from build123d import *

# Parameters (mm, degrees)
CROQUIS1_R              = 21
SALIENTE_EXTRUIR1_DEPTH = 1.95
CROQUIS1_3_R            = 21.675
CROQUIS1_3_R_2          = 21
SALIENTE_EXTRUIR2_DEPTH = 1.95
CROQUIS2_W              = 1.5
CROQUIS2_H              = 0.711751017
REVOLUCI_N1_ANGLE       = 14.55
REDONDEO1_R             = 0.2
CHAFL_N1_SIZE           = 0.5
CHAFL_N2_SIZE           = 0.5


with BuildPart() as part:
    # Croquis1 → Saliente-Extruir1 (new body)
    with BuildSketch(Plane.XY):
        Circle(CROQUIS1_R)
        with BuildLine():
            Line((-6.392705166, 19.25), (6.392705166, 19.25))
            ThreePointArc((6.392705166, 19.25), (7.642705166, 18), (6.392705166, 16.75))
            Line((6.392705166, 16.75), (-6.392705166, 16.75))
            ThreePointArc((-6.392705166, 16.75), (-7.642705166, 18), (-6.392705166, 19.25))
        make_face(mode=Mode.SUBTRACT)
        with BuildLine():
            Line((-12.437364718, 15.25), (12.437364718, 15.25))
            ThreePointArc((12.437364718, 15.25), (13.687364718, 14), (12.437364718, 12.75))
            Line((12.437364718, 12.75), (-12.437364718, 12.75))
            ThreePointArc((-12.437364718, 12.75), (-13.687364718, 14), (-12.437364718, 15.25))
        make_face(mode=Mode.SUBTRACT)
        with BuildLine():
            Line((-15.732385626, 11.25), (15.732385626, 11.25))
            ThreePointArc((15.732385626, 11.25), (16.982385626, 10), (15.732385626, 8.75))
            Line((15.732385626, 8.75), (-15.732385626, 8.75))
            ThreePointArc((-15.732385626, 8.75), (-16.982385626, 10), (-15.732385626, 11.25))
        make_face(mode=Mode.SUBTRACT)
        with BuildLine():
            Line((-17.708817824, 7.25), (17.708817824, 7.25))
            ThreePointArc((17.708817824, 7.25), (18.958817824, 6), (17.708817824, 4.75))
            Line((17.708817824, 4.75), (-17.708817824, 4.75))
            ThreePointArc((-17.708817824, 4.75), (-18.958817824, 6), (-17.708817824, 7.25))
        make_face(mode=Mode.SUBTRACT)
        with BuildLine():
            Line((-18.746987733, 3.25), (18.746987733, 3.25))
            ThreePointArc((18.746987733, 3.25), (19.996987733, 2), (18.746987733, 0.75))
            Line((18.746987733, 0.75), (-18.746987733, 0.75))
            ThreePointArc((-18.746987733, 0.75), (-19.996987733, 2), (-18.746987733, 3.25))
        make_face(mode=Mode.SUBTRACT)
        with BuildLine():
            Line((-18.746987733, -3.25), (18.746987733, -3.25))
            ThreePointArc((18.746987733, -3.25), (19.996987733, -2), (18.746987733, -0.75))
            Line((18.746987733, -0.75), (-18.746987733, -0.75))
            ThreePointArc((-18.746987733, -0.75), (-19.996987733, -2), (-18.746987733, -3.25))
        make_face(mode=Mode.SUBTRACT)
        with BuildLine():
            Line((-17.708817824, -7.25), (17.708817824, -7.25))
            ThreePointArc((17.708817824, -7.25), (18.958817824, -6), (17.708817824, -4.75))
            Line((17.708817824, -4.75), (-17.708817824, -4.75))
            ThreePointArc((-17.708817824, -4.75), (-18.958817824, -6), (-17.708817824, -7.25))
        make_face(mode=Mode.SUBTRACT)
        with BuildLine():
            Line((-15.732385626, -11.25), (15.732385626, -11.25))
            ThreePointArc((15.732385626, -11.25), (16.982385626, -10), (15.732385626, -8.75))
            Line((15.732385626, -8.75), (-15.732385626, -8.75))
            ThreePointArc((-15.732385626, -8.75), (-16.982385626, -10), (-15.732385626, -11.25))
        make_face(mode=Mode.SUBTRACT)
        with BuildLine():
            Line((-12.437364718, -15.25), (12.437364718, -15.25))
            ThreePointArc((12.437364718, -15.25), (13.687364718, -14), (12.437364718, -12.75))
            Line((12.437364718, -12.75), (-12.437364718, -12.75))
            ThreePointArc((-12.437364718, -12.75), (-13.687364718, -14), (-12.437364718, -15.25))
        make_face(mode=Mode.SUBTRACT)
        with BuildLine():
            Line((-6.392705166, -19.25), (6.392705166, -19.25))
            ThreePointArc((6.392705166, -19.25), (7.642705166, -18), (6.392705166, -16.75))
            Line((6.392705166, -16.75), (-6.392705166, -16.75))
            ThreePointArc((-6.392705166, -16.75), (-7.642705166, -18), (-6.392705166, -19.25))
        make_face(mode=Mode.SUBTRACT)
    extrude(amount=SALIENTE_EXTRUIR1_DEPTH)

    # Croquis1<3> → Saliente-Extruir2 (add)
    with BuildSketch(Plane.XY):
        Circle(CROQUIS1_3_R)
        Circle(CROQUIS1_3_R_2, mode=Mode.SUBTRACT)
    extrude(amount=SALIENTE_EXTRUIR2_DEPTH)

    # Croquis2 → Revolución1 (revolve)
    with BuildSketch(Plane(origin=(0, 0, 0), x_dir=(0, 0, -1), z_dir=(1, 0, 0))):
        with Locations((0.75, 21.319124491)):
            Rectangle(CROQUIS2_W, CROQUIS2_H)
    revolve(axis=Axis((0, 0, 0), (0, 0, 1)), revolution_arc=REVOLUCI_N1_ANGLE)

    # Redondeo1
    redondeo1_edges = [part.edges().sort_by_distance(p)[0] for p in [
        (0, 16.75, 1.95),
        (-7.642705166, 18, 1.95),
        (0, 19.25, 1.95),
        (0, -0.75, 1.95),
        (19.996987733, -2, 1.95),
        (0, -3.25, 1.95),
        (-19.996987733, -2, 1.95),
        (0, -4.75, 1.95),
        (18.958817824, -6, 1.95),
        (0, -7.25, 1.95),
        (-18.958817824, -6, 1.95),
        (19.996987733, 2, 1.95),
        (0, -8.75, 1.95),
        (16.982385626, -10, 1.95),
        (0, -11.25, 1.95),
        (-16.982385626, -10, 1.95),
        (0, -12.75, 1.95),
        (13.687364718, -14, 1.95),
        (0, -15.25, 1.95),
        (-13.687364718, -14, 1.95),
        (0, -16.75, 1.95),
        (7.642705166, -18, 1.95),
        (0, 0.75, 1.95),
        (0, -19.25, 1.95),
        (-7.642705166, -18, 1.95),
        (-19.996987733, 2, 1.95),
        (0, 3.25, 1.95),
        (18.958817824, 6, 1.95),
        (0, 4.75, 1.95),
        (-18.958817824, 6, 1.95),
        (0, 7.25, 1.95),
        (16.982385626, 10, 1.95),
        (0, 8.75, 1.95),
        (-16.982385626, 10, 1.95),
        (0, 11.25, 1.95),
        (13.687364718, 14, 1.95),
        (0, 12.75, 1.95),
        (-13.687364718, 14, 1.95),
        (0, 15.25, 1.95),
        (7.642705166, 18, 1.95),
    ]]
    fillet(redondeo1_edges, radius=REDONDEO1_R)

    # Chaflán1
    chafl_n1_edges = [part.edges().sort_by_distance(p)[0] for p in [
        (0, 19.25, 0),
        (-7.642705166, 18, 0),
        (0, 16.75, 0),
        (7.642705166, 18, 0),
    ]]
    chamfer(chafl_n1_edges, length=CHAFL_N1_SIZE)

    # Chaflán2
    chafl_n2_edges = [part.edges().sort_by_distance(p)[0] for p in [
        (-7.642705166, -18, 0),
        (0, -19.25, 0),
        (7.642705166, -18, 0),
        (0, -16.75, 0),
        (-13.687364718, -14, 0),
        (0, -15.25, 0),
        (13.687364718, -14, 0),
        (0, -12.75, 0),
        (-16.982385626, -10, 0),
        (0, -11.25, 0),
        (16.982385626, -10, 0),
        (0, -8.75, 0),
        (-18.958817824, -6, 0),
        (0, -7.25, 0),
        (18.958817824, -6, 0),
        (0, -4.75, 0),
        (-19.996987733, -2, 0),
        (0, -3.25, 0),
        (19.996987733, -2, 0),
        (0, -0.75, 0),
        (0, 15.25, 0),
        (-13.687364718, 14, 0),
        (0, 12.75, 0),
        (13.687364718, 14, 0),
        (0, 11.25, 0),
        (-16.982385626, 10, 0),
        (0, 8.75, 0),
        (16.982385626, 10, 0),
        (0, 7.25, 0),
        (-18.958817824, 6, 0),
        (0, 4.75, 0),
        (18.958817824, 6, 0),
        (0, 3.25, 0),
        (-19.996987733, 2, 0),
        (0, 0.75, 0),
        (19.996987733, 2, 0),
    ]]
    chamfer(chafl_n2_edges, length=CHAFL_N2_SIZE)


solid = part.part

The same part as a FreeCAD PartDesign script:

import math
import FreeCAD as App
import Part
import Sketcher

V = App.Vector
Q = App.Units.Quantity


def edges_at(feature, points):
    """Names of the edges that pass closest to the given points."""
    edges = feature.Shape.Edges
    near = lambda p: min(range(len(edges)), key=lambda i: edges[i].distToShape(Part.Vertex(*p))[0])
    return sorted({f"Edge{near(p) + 1}" for p in points})

doc = App.newDocument("Part")
body = doc.addObject("PartDesign::Body", "Body")

# Sketch on XY plane
sketch1 = doc.addObject("Sketcher::SketchObject", "Sketch")
body.addObject(sketch1)
sketch1.AttachmentSupport = (doc.XY_Plane, [""])
sketch1.MapMode = "FlatFace"
sketch1.addGeometry(Part.Circle(V(0, 0, 0), V(0, 0, 1), 21), False)
sketch1.addGeometry(Part.LineSegment(V(6.392705, -19.25, 0), V(-6.392705, -19.25, 0)), False)
sketch1.addGeometry(Part.ArcOfCircle(Part.Circle(V(-6.392705, -18, 0), V(0, 0, 1), 1.25), math.radians(90), math.radians(270)), False)
sketch1.addGeometry(Part.LineSegment(V(-6.392705, -16.75, 0), V(6.392705, -16.75, 0)), False)
sketch1.addGeometry(Part.ArcOfCircle(Part.Circle(V(6.392705, -18, 0), V(0, 0, 1), 1.25), math.radians(-90), math.radians(90)), False)
sketch1.addGeometry(Part.LineSegment(V(12.437365, -15.25, 0), V(-12.437365, -15.25, 0)), False)
sketch1.addGeometry(Part.ArcOfCircle(Part.Circle(V(-12.437365, -14, 0), V(0, 0, 1), 1.25), math.radians(90), math.radians(270)), False)
sketch1.addGeometry(Part.LineSegment(V(-12.437365, -12.75, 0), V(12.437365, -12.75, 0)), False)
sketch1.addGeometry(Part.ArcOfCircle(Part.Circle(V(12.437365, -14, 0), V(0, 0, 1), 1.25), math.radians(-90), math.radians(90)), False)
sketch1.addGeometry(Part.LineSegment(V(15.732386, -11.25, 0), V(-15.732386, -11.25, 0)), False)
sketch1.addGeometry(Part.ArcOfCircle(Part.Circle(V(-15.732386, -10, 0), V(0, 0, 1), 1.25), math.radians(90), math.radians(270)), False)
sketch1.addGeometry(Part.LineSegment(V(-15.732386, -8.75, 0), V(15.732386, -8.75, 0)), False)
sketch1.addGeometry(Part.ArcOfCircle(Part.Circle(V(15.732386, -10, 0), V(0, 0, 1), 1.25), math.radians(-90), math.radians(90)), False)
sketch1.addGeometry(Part.LineSegment(V(17.708818, -7.25, 0), V(-17.708818, -7.25, 0)), False)
sketch1.addGeometry(Part.ArcOfCircle(Part.Circle(V(-17.708818, -6, 0), V(0, 0, 1), 1.25), math.radians(90), math.radians(270)), False)
sketch1.addGeometry(Part.LineSegment(V(-17.708818, -4.75, 0), V(17.708818, -4.75, 0)), False)
sketch1.addGeometry(Part.ArcOfCircle(Part.Circle(V(17.708818, -6, 0), V(0, 0, 1), 1.25), math.radians(-90), math.radians(90)), False)
sketch1.addGeometry(Part.LineSegment(V(18.746988, -3.25, 0), V(-18.746988, -3.25, 0)), False)
sketch1.addGeometry(Part.ArcOfCircle(Part.Circle(V(-18.746988, -2, 0), V(0, 0, 1), 1.25), math.radians(90), math.radians(270)), False)
sketch1.addGeometry(Part.LineSegment(V(-18.746988, -0.75, 0), V(18.746988, -0.75, 0)), False)
sketch1.addGeometry(Part.ArcOfCircle(Part.Circle(V(18.746988, -2, 0), V(0, 0, 1), 1.25), math.radians(-90), math.radians(90)), False)
sketch1.addGeometry(Part.ArcOfCircle(Part.Circle(V(-18.746988, 2, 0), V(0, 0, 1), 1.25), math.radians(90), math.radians(270)), False)
sketch1.addGeometry(Part.LineSegment(V(-18.746988, 3.25, 0), V(18.746988, 3.25, 0)), False)
sketch1.addGeometry(Part.ArcOfCircle(Part.Circle(V(18.746988, 2, 0), V(0, 0, 1), 1.25), math.radians(-90), math.radians(90)), False)
sketch1.addGeometry(Part.LineSegment(V(18.746988, 0.75, 0), V(-18.746988, 0.75, 0)), False)
sketch1.addGeometry(Part.ArcOfCircle(Part.Circle(V(-17.708818, 6, 0), V(0, 0, 1), 1.25), math.radians(90), math.radians(270)), False)
sketch1.addGeometry(Part.LineSegment(V(-17.708818, 7.25, 0), V(17.708818, 7.25, 0)), False)
sketch1.addGeometry(Part.ArcOfCircle(Part.Circle(V(17.708818, 6, 0), V(0, 0, 1), 1.25), math.radians(-90), math.radians(90)), False)
sketch1.addGeometry(Part.LineSegment(V(17.708818, 4.75, 0), V(-17.708818, 4.75, 0)), False)
sketch1.addGeometry(Part.ArcOfCircle(Part.Circle(V(-15.732386, 10, 0), V(0, 0, 1), 1.25), math.radians(90), math.radians(270)), False)
sketch1.addGeometry(Part.LineSegment(V(-15.732386, 11.25, 0), V(15.732386, 11.25, 0)), False)
sketch1.addGeometry(Part.ArcOfCircle(Part.Circle(V(15.732386, 10, 0), V(0, 0, 1), 1.25), math.radians(-90), math.radians(90)), False)
sketch1.addGeometry(Part.LineSegment(V(15.732386, 8.75, 0), V(-15.732386, 8.75, 0)), False)
sketch1.addGeometry(Part.ArcOfCircle(Part.Circle(V(-12.437365, 14, 0), V(0, 0, 1), 1.25), math.radians(90), math.radians(270)), False)
sketch1.addGeometry(Part.LineSegment(V(-12.437365, 15.25, 0), V(12.437365, 15.25, 0)), False)
sketch1.addGeometry(Part.ArcOfCircle(Part.Circle(V(12.437365, 14, 0), V(0, 0, 1), 1.25), math.radians(-90), math.radians(90)), False)
sketch1.addGeometry(Part.LineSegment(V(12.437365, 12.75, 0), V(-12.437365, 12.75, 0)), False)
sketch1.addGeometry(Part.ArcOfCircle(Part.Circle(V(-6.392705, 18, 0), V(0, 0, 1), 1.25), math.radians(90), math.radians(270)), False)
sketch1.addGeometry(Part.LineSegment(V(-6.392705, 19.25, 0), V(6.392705, 19.25, 0)), False)
sketch1.addGeometry(Part.ArcOfCircle(Part.Circle(V(6.392705, 18, 0), V(0, 0, 1), 1.25), math.radians(-90), math.radians(90)), False)
sketch1.addGeometry(Part.LineSegment(V(6.392705, 16.75, 0), V(-6.392705, 16.75, 0)), False)
sketch1.addConstraint(Sketcher.Constraint("Tangent", 1, 2, 2, 2))
sketch1.addConstraint(Sketcher.Constraint("Tangent", 2, 1, 3, 1))
sketch1.addConstraint(Sketcher.Constraint("Tangent", 3, 2, 4, 2))
sketch1.addConstraint(Sketcher.Constraint("Tangent", 4, 1, 1, 1))
sketch1.addConstraint(Sketcher.Constraint("Tangent", 5, 2, 6, 2))
sketch1.addConstraint(Sketcher.Constraint("Tangent", 6, 1, 7, 1))
sketch1.addConstraint(Sketcher.Constraint("Tangent", 7, 2, 8, 2))
sketch1.addConstraint(Sketcher.Constraint("Tangent", 8, 1, 5, 1))
sketch1.addConstraint(Sketcher.Constraint("Tangent", 9, 2, 10, 2))
sketch1.addConstraint(Sketcher.Constraint("Tangent", 10, 1, 11, 1))
sketch1.addConstraint(Sketcher.Constraint("Tangent", 11, 2, 12, 2))
sketch1.addConstraint(Sketcher.Constraint("Tangent", 12, 1, 9, 1))
sketch1.addConstraint(Sketcher.Constraint("Tangent", 13, 2, 14, 2))
sketch1.addConstraint(Sketcher.Constraint("Tangent", 14, 1, 15, 1))
sketch1.addConstraint(Sketcher.Constraint("Tangent", 15, 2, 16, 2))
sketch1.addConstraint(Sketcher.Constraint("Tangent", 16, 1, 13, 1))
sketch1.addConstraint(Sketcher.Constraint("Tangent", 17, 2, 18, 2))
sketch1.addConstraint(Sketcher.Constraint("Tangent", 18, 1, 19, 1))
sketch1.addConstraint(Sketcher.Constraint("Tangent", 19, 2, 20, 2))
sketch1.addConstraint(Sketcher.Constraint("Tangent", 20, 1, 17, 1))
sketch1.addConstraint(Sketcher.Constraint("Tangent", 21, 1, 22, 1))
sketch1.addConstraint(Sketcher.Constraint("Tangent", 22, 2, 23, 2))
sketch1.addConstraint(Sketcher.Constraint("Tangent", 23, 1, 24, 1))
sketch1.addConstraint(Sketcher.Constraint("Tangent", 24, 2, 21, 2))
sketch1.addConstraint(Sketcher.Constraint("Tangent", 25, 1, 26, 1))
sketch1.addConstraint(Sketcher.Constraint("Tangent", 26, 2, 27, 2))
sketch1.addConstraint(Sketcher.Constraint("Tangent", 27, 1, 28, 1))
sketch1.addConstraint(Sketcher.Constraint("Tangent", 28, 2, 25, 2))
sketch1.addConstraint(Sketcher.Constraint("Tangent", 29, 1, 30, 1))
sketch1.addConstraint(Sketcher.Constraint("Tangent", 30, 2, 31, 2))
sketch1.addConstraint(Sketcher.Constraint("Tangent", 31, 1, 32, 1))
sketch1.addConstraint(Sketcher.Constraint("Tangent", 32, 2, 29, 2))
sketch1.addConstraint(Sketcher.Constraint("Tangent", 33, 1, 34, 1))
sketch1.addConstraint(Sketcher.Constraint("Tangent", 34, 2, 35, 2))
sketch1.addConstraint(Sketcher.Constraint("Tangent", 35, 1, 36, 1))
sketch1.addConstraint(Sketcher.Constraint("Tangent", 36, 2, 33, 2))
sketch1.addConstraint(Sketcher.Constraint("Tangent", 37, 1, 38, 1))
sketch1.addConstraint(Sketcher.Constraint("Tangent", 38, 2, 39, 2))
sketch1.addConstraint(Sketcher.Constraint("Tangent", 39, 1, 40, 1))
sketch1.addConstraint(Sketcher.Constraint("Tangent", 40, 2, 37, 2))
sketch1.addConstraint(Sketcher.Constraint("Horizontal", 1))
sketch1.addConstraint(Sketcher.Constraint("Horizontal", 3))
sketch1.addConstraint(Sketcher.Constraint("Horizontal", 5))
sketch1.addConstraint(Sketcher.Constraint("Horizontal", 7))
sketch1.addConstraint(Sketcher.Constraint("Horizontal", 9))
sketch1.addConstraint(Sketcher.Constraint("Horizontal", 11))
sketch1.addConstraint(Sketcher.Constraint("Horizontal", 13))
sketch1.addConstraint(Sketcher.Constraint("Horizontal", 15))
sketch1.addConstraint(Sketcher.Constraint("Horizontal", 17))
sketch1.addConstraint(Sketcher.Constraint("Horizontal", 19))
sketch1.addConstraint(Sketcher.Constraint("Horizontal", 22))
sketch1.addConstraint(Sketcher.Constraint("Horizontal", 24))
sketch1.addConstraint(Sketcher.Constraint("Horizontal", 26))
sketch1.addConstraint(Sketcher.Constraint("Horizontal", 28))
sketch1.addConstraint(Sketcher.Constraint("Horizontal", 30))
sketch1.addConstraint(Sketcher.Constraint("Horizontal", 32))
sketch1.addConstraint(Sketcher.Constraint("Horizontal", 34))
sketch1.addConstraint(Sketcher.Constraint("Horizontal", 36))
sketch1.addConstraint(Sketcher.Constraint("Horizontal", 38))
sketch1.addConstraint(Sketcher.Constraint("Horizontal", 40))
sketch1.addConstraint(Sketcher.Constraint("Coincident", 0, 3, -1, 1))
sketch1.addConstraint(Sketcher.Constraint("Equal", 4, 6))
sketch1.addConstraint(Sketcher.Constraint("Equal", 8, 10))
sketch1.addConstraint(Sketcher.Constraint("Equal", 12, 14))
sketch1.addConstraint(Sketcher.Constraint("Equal", 16, 18))
sketch1.addConstraint(Sketcher.Constraint("Equal", 20, 21))
sketch1.addConstraint(Sketcher.Constraint("Equal", 23, 25))
sketch1.addConstraint(Sketcher.Constraint("Equal", 27, 29))
sketch1.addConstraint(Sketcher.Constraint("Equal", 31, 33))
sketch1.addConstraint(Sketcher.Constraint("Equal", 35, 37))
sketch1.addConstraint(Sketcher.Constraint("Symmetric", 20, 3, 21, 3, -1, 1))
sketch1.addConstraint(Sketcher.Constraint("Symmetric", 16, 3, 25, 3, -1, 1))
sketch1.addConstraint(Sketcher.Constraint("Symmetric", 12, 3, 29, 3, -1, 1))
sketch1.addConstraint(Sketcher.Constraint("Symmetric", 8, 3, 33, 3, -1, 1))
sketch1.addConstraint(Sketcher.Constraint("Symmetric", 4, 3, 37, 3, -1, 1))
sketch1.addConstraint(Sketcher.Constraint("Vertical", 18, 3, 21, 3))
sketch1.addConstraint(Sketcher.Constraint("Vertical", 20, 3, 23, 3))
sketch1.addConstraint(Sketcher.Constraint("Vertical", 14, 3, 25, 3))
sketch1.addConstraint(Sketcher.Constraint("Vertical", 16, 3, 27, 3))
sketch1.addConstraint(Sketcher.Constraint("Vertical", 10, 3, 29, 3))
sketch1.addConstraint(Sketcher.Constraint("Vertical", 12, 3, 31, 3))
sketch1.addConstraint(Sketcher.Constraint("Vertical", 6, 3, 33, 3))
sketch1.addConstraint(Sketcher.Constraint("Vertical", 8, 3, 35, 3))
sketch1.addConstraint(Sketcher.Constraint("Vertical", 2, 3, 37, 3))
sketch1.addConstraint(Sketcher.Constraint("Vertical", 4, 3, 39, 3))
sketch1.addConstraint(Sketcher.Constraint("Diameter", 0, Q("42 mm")))
sketch1.addConstraint(Sketcher.Constraint("Radius", 2, Q("1.25 mm")))
sketch1.addConstraint(Sketcher.Constraint("DistanceY", 2, 3, -1, 1, Q("18 mm")))
sketch1.addConstraint(Sketcher.Constraint("DistanceY", 6, 3, -1, 1, Q("14 mm")))
sketch1.addConstraint(Sketcher.Constraint("DistanceY", 10, 3, -1, 1, Q("10 mm")))
sketch1.addConstraint(Sketcher.Constraint("DistanceY", 14, 3, -1, 1, Q("6 mm")))
sketch1.addConstraint(Sketcher.Constraint("DistanceY", 18, 3, -1, 1, Q("2 mm")))
sketch1.addConstraint(Sketcher.Constraint("DistanceX", 1, 2, 1, 1, Q("12.78541 mm")))
sketch1.addConstraint(Sketcher.Constraint("DistanceX", 5, 2, 5, 1, Q("24.874729 mm")))
sketch1.addConstraint(Sketcher.Constraint("DistanceX", 9, 2, 9, 1, Q("31.464771 mm")))
sketch1.addConstraint(Sketcher.Constraint("DistanceX", 13, 2, 13, 1, Q("35.417636 mm")))
sketch1.addConstraint(Sketcher.Constraint("DistanceX", 17, 2, 17, 1, Q("37.493975 mm")))
pad1 = doc.addObject("PartDesign::Pad", "Pad")
body.addObject(pad1)
pad1.Profile = sketch1
pad1.Length = 1.95

# Sketch on XY plane
sketch2 = doc.addObject("Sketcher::SketchObject", "Sketch001")
body.addObject(sketch2)
sketch2.AttachmentSupport = (doc.XY_Plane, [""])
sketch2.MapMode = "FlatFace"
sketch2.addGeometry(Part.Circle(V(0, 0, 0), V(0, 0, 1), 21.675), False)
sketch2.addGeometry(Part.Circle(V(0, 0, 0), V(0, 0, 1), 21), False)
sketch2.addConstraint(Sketcher.Constraint("Coincident", 0, 3, -1, 1))
sketch2.addConstraint(Sketcher.Constraint("Coincident", 1, 3, -1, 1))
sketch2.addConstraint(Sketcher.Constraint("Diameter", 1, Q("42 mm")))
sketch2.addConstraint(Sketcher.Constraint("Diameter", 0, Q("43.35 mm")))
pad2 = doc.addObject("PartDesign::Pad", "Pad001")
body.addObject(pad2)
pad2.Profile = sketch2
pad2.Length = 1.95

# Sketch on YZ plane
sketch3 = doc.addObject("Sketcher::SketchObject", "Sketch002")
body.addObject(sketch3)
sketch3.AttachmentSupport = (doc.YZ_Plane, [""])
sketch3.MapMode = "FlatFace"
sketch3.addGeometry(Part.LineSegment(V(21.675, 0, 0), V(20.963249, 0, 0)), False)
sketch3.addGeometry(Part.LineSegment(V(20.963249, 0, 0), V(20.963249, -1.5, 0)), False)
sketch3.addGeometry(Part.LineSegment(V(20.963249, -1.5, 0), V(21.675, -1.5, 0)), False)
sketch3.addGeometry(Part.LineSegment(V(21.675, -1.5, 0), V(21.675, 0, 0)), False)
sketch3.addConstraint(Sketcher.Constraint("Coincident", 0, 2, 1, 1))
sketch3.addConstraint(Sketcher.Constraint("Coincident", 1, 2, 2, 1))
sketch3.addConstraint(Sketcher.Constraint("Coincident", 2, 2, 3, 1))
sketch3.addConstraint(Sketcher.Constraint("Coincident", 3, 2, 0, 1))
sketch3.addConstraint(Sketcher.Constraint("Horizontal", 0))
sketch3.addConstraint(Sketcher.Constraint("Vertical", 1))
sketch3.addConstraint(Sketcher.Constraint("Horizontal", 2))
sketch3.addConstraint(Sketcher.Constraint("Vertical", 3))
sketch3.addConstraint(Sketcher.Constraint("PointOnObject", 0, 2, -1))
sketch3.addConstraint(Sketcher.Constraint("DistanceY", 1, 2, 1, 1, Q("1.5 mm")))
sketch3.addConstraint(Sketcher.Constraint("DistanceX", -1, 1, 2, 2, Q("21.675 mm")))
sketch3.addConstraint(Sketcher.Constraint("DistanceX", 0, 2, 0, 1, Q("0.711751 mm")))
revolution = doc.addObject("PartDesign::Revolution", "Revolution")
body.addObject(revolution)
revolution.Profile = sketch3
revolution.ReferenceAxis = (sketch3, ["V_Axis"])
revolution.Angle = 14.55
doc.recompute()

fillet = doc.addObject("PartDesign::Fillet", "Fillet")
body.addObject(fillet)
fillet.Base = (revolution, edges_at(revolution, [
    (0, 16.75, 1.95),
    (-7.643, 18, 1.95),
    (0, 19.25, 1.95),
    (0, -0.75, 1.95),
    (19.997, -2, 1.95),
    (0, -3.25, 1.95),
    (-19.997, -2, 1.95),
    (0, -4.75, 1.95),
    (18.959, -6, 1.95),
    (0, -7.25, 1.95),
    (-18.959, -6, 1.95),
    (19.997, 2, 1.95),
    (0, -8.75, 1.95),
    (16.982, -10, 1.95),
    (0, -11.25, 1.95),
    (-16.982, -10, 1.95),
    (0, -12.75, 1.95),
    (13.687, -14, 1.95),
    (0, -15.25, 1.95),
    (-13.687, -14, 1.95),
    (0, -16.75, 1.95),
    (7.643, -18, 1.95),
    (0, 0.75, 1.95),
    (0, -19.25, 1.95),
    (-7.643, -18, 1.95),
    (-19.997, 2, 1.95),
    (0, 3.25, 1.95),
    (18.959, 6, 1.95),
    (0, 4.75, 1.95),
    (-18.959, 6, 1.95),
    (0, 7.25, 1.95),
    (16.982, 10, 1.95),
    (0, 8.75, 1.95),
    (-16.982, 10, 1.95),
    (0, 11.25, 1.95),
    (13.687, 14, 1.95),
    (0, 12.75, 1.95),
    (-13.687, 14, 1.95),
    (0, 15.25, 1.95),
    (7.643, 18, 1.95),
]))
fillet.Radius = 0.2
doc.recompute()

chamfer = doc.addObject("PartDesign::Chamfer", "Chamfer")
body.addObject(chamfer)
chamfer.Base = (fillet, edges_at(fillet, [
    (0, 19.25, 0),
    (-7.643, 18, 0),
    (0, 16.75, 0),
    (7.643, 18, 0),
]))
chamfer.Size = 0.5
doc.recompute()

chamfer2 = doc.addObject("PartDesign::Chamfer", "Chamfer001")
body.addObject(chamfer2)
chamfer2.Base = (chamfer, edges_at(chamfer, [
    (-7.643, -18, 0),
    (0, -19.25, 0),
    (7.643, -18, 0),
    (0, -16.75, 0),
    (-13.687, -14, 0),
    (0, -15.25, 0),
    (13.687, -14, 0),
    (0, -12.75, 0),
    (-16.982, -10, 0),
    (0, -11.25, 0),
    (16.982, -10, 0),
    (0, -8.75, 0),
    (-18.959, -6, 0),
    (0, -7.25, 0),
    (18.959, -6, 0),
    (0, -4.75, 0),
    (-19.997, -2, 0),
    (0, -3.25, 0),
    (19.997, -2, 0),
    (0, -0.75, 0),
    (0, 15.25, 0),
    (-13.687, 14, 0),
    (0, 12.75, 0),
    (13.687, 14, 0),
    (0, 11.25, 0),
    (-16.982, 10, 0),
    (0, 8.75, 0),
    (16.982, 10, 0),
    (0, 7.25, 0),
    (-18.959, 6, 0),
    (0, 4.75, 0),
    (18.959, 6, 0),
    (0, 3.25, 0),
    (-19.997, 2, 0),
    (0, 0.75, 0),
    (19.997, 2, 0),
]))
chamfer2.Size = 0.5

doc.recompute()
